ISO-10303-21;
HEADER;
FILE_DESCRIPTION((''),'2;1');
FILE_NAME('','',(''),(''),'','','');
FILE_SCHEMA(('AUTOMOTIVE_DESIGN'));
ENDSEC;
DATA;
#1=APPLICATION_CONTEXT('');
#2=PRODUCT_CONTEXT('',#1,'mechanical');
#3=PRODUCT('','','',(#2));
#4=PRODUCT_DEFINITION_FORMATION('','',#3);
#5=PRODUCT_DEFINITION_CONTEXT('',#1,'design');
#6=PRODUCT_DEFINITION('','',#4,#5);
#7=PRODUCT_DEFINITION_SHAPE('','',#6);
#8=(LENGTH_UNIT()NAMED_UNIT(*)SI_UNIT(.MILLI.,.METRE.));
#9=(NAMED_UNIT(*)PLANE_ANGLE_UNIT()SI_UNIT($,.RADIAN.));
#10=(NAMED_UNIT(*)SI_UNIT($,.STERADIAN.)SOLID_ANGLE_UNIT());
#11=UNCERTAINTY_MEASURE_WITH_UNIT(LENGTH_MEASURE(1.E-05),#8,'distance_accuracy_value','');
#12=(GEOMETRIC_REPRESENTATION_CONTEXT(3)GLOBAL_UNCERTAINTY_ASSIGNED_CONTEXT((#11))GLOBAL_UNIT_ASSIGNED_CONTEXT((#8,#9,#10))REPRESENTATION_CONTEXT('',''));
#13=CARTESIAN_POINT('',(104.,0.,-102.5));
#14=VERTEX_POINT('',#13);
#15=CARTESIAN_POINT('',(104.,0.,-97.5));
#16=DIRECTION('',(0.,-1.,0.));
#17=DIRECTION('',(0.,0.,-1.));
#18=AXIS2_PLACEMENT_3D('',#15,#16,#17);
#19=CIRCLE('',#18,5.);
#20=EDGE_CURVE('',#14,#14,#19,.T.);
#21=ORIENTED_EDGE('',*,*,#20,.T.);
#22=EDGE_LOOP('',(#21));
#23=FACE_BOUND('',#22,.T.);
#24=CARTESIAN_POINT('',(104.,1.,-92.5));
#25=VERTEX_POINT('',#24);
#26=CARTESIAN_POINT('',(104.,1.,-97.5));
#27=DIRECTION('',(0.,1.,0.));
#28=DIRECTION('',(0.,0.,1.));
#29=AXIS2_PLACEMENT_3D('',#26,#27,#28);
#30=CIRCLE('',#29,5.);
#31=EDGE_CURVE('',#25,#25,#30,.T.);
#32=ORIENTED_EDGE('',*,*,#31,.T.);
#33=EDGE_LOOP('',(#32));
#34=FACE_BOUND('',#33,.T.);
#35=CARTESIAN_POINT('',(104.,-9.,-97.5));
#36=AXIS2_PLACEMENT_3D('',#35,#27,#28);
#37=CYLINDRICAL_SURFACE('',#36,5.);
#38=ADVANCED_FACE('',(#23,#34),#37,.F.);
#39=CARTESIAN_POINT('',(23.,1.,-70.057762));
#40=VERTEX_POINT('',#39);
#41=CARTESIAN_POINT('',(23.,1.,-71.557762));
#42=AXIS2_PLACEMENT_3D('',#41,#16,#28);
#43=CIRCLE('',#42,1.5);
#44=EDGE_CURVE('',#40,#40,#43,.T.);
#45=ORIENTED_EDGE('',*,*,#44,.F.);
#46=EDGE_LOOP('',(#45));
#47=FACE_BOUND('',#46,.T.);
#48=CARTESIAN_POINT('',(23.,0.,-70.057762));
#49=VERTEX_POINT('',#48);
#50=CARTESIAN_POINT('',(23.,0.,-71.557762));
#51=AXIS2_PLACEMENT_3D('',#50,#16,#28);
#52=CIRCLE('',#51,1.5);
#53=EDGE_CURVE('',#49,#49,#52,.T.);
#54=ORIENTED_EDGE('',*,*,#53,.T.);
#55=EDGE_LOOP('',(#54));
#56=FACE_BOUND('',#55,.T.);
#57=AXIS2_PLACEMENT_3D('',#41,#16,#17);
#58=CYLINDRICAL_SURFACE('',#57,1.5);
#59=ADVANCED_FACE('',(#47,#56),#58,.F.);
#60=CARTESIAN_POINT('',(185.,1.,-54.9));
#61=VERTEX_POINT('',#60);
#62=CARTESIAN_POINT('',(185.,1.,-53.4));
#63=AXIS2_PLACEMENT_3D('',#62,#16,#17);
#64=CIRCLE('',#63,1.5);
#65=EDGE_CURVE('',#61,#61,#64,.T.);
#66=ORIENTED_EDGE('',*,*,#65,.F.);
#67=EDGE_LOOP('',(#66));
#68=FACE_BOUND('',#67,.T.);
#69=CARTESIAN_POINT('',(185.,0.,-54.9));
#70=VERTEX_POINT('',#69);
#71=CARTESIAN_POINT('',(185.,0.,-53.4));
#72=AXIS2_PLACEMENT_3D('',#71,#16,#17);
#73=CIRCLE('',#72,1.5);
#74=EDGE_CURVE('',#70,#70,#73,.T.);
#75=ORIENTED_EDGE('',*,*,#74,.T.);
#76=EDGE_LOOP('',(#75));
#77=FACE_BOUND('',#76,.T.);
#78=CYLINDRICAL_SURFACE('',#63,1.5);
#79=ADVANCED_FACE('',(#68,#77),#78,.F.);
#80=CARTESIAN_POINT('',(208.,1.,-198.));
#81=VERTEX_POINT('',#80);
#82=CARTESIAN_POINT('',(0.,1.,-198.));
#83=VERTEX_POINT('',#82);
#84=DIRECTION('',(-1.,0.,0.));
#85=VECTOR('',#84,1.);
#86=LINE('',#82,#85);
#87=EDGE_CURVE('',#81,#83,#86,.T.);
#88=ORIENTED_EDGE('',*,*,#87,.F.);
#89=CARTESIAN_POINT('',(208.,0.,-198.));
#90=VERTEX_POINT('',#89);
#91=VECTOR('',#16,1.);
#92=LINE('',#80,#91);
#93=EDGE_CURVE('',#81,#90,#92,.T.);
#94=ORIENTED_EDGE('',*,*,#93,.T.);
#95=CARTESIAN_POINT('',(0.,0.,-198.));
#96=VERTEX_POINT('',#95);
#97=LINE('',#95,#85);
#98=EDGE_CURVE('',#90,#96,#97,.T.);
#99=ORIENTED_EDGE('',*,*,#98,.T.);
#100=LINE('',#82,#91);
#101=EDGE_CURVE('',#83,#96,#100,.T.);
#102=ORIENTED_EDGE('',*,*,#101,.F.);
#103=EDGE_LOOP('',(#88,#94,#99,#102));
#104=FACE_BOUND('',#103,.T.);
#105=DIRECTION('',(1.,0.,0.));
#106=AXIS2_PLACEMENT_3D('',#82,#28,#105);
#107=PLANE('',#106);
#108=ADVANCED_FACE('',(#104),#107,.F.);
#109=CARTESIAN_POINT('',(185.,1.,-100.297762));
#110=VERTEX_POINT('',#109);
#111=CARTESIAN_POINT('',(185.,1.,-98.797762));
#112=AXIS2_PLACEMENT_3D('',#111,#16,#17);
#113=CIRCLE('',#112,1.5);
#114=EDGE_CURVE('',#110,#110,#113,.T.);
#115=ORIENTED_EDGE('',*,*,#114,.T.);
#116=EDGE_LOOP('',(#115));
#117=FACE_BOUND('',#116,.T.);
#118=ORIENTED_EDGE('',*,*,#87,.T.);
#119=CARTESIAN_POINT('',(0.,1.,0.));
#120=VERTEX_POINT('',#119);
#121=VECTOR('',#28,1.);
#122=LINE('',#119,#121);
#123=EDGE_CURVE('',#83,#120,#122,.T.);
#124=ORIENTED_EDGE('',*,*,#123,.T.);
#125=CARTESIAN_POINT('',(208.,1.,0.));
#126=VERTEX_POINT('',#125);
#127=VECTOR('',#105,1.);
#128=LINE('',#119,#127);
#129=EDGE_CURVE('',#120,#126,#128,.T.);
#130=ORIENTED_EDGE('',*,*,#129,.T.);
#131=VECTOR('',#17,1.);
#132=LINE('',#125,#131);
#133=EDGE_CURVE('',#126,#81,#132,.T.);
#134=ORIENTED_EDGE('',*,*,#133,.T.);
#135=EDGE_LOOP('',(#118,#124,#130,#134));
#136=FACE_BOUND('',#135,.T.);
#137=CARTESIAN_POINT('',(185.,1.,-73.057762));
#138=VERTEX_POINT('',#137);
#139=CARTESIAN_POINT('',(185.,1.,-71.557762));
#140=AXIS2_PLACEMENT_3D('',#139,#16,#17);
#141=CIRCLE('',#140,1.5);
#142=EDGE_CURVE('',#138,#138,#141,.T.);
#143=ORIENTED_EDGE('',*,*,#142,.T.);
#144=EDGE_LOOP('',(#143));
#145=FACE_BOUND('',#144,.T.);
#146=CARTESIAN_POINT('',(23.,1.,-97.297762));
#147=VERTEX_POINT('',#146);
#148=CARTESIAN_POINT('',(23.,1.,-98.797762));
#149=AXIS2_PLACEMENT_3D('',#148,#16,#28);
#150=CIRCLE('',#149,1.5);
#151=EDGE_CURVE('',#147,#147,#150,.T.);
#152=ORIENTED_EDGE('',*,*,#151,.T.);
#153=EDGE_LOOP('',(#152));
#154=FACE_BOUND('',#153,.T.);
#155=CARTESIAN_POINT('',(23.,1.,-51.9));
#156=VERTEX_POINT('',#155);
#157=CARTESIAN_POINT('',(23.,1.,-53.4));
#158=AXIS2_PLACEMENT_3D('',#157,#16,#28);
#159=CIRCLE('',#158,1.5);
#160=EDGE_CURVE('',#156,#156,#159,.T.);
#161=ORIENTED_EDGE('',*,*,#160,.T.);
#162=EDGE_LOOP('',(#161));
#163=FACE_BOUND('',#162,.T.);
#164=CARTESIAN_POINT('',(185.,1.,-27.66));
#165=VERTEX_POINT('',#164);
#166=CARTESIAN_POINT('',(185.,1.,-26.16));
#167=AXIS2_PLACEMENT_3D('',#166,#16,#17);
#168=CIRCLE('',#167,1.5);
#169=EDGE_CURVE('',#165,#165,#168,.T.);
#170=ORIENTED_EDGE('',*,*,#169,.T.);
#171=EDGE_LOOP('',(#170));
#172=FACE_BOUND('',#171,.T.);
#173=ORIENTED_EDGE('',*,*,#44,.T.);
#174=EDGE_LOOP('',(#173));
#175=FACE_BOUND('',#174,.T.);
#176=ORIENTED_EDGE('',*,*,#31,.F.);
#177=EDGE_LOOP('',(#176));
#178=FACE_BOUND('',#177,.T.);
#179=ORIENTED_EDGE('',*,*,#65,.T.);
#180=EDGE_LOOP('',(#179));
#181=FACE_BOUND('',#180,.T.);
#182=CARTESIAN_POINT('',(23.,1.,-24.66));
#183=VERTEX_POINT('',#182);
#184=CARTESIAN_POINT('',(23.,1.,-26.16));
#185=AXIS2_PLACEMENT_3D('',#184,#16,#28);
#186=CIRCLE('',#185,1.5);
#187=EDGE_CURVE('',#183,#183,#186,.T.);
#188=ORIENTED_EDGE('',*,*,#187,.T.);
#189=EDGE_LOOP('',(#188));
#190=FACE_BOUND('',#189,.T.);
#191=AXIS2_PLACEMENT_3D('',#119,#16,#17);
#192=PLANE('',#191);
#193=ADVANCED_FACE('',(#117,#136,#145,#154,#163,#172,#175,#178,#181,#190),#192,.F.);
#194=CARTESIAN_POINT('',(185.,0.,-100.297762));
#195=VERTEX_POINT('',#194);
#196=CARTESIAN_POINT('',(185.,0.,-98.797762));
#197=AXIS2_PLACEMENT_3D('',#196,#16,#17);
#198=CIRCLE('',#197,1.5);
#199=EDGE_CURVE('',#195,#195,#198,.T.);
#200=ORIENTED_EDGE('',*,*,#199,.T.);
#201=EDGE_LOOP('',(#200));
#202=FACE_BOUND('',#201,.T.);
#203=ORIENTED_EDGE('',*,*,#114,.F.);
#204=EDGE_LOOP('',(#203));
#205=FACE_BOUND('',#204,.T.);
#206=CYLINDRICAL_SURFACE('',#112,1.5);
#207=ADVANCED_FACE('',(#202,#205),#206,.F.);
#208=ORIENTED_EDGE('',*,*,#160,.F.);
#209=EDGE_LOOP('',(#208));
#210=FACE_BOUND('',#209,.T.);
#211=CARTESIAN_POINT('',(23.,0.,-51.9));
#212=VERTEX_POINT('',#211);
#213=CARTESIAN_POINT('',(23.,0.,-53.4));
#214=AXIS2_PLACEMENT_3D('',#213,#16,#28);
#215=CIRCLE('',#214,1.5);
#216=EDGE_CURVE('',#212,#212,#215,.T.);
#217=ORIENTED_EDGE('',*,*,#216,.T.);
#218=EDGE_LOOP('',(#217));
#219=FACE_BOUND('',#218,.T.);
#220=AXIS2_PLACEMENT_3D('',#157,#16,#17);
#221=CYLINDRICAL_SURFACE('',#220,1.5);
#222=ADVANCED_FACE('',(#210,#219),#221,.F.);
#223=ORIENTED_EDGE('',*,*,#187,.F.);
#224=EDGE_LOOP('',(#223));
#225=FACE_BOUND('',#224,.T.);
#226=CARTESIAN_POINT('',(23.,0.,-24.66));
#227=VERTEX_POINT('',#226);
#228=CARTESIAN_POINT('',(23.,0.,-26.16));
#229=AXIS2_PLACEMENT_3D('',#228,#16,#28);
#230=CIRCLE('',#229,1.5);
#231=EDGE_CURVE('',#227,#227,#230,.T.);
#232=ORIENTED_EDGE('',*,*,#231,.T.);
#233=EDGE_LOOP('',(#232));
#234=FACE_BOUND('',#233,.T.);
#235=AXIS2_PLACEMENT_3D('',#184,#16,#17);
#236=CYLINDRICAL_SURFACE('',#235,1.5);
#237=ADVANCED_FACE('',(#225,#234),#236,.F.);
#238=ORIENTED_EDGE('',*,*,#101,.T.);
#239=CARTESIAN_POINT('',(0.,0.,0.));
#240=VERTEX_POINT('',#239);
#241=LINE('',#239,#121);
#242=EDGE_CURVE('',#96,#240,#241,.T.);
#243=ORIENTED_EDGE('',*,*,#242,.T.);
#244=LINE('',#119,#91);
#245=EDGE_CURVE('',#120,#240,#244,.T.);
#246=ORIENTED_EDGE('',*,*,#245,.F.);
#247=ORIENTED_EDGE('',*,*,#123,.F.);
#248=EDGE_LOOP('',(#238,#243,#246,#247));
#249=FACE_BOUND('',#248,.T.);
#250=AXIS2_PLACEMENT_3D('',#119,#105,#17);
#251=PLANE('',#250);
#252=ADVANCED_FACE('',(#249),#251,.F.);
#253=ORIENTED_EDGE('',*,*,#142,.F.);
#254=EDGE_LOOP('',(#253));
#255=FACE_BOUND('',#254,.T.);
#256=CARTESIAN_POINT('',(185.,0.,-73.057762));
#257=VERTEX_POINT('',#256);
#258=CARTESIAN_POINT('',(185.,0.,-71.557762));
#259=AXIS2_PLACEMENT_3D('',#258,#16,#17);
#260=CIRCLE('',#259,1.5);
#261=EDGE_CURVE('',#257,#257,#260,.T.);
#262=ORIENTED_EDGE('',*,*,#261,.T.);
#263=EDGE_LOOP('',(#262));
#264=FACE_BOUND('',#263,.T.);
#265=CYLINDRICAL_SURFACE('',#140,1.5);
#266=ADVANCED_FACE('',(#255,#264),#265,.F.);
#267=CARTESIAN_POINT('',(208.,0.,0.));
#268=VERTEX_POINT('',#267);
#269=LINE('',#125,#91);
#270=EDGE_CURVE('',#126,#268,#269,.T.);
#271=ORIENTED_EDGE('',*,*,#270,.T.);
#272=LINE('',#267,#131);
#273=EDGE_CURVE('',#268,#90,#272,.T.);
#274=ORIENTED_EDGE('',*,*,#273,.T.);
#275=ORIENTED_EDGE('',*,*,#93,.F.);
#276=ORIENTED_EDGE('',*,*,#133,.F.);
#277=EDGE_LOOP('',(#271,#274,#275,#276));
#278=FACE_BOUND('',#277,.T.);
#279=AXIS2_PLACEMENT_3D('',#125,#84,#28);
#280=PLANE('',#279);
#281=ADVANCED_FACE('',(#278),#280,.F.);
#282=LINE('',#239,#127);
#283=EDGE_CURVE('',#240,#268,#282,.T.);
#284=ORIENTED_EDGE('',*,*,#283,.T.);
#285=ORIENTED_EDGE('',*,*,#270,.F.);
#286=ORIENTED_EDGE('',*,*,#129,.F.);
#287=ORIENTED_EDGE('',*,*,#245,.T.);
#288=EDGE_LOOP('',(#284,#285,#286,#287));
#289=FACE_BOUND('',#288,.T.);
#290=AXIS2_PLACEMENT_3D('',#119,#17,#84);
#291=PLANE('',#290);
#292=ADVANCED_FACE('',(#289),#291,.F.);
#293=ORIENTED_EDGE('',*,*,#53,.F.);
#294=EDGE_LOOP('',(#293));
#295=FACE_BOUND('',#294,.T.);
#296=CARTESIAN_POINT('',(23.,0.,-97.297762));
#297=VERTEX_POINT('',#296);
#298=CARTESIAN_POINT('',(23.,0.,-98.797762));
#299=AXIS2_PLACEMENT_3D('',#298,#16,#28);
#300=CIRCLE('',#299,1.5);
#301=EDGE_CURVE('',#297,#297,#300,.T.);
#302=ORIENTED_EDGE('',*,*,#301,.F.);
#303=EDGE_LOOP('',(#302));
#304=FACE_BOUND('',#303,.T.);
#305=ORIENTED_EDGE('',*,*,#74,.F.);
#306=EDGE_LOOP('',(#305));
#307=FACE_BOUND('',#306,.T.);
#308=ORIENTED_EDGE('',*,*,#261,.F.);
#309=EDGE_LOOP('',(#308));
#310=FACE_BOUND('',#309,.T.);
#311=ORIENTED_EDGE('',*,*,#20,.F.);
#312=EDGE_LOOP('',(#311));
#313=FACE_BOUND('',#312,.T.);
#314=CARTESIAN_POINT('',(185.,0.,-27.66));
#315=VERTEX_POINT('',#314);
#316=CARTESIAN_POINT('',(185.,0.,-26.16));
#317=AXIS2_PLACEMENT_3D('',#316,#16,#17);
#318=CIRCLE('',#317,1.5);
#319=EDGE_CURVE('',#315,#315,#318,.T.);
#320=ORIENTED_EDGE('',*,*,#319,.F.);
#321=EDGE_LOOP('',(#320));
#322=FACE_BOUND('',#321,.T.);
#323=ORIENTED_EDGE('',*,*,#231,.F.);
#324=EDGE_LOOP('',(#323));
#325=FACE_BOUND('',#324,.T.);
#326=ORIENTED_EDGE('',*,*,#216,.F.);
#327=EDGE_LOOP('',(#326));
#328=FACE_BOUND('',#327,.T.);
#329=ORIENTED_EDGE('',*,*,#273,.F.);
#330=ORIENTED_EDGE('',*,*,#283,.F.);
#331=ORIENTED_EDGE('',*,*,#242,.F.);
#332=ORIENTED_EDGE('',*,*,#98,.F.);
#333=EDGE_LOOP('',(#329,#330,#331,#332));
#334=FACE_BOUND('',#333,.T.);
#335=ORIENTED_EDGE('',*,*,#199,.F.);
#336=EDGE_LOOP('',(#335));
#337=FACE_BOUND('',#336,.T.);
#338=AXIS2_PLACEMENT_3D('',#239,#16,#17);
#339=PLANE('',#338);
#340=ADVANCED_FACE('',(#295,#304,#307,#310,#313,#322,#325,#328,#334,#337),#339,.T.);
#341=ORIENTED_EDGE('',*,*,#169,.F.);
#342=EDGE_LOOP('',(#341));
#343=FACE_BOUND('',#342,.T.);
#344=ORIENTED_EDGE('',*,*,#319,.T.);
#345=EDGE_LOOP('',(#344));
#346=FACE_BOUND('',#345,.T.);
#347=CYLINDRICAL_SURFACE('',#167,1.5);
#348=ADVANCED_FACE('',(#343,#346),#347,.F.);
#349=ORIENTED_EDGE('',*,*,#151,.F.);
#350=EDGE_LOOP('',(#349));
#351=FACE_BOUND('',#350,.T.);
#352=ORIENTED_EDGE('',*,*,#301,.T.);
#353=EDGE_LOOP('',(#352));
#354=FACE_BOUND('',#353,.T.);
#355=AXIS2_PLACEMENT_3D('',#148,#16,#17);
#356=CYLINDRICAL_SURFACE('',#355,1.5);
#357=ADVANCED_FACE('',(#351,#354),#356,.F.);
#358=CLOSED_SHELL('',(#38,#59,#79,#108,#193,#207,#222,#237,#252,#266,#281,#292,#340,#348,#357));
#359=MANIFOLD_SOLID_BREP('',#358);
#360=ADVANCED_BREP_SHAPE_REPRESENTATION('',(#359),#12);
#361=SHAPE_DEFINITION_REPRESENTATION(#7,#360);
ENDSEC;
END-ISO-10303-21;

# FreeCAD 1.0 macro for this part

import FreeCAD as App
import Part
import Sketcher
from FreeCAD import Vector

doc = App.newDocument("Part")
body = doc.addObject("PartDesign::Body", "Body")

# Sketch on XZ plane
sketch1 = body.newObject("Sketcher::SketchObject", "Sketch")
sketch1.AttachmentSupport = (doc.getObject("XZ_Plane"), [""])
sketch1.MapMode = "FlatFace"
sketch1.addGeometry(Part.LineSegment(Vector(0, -198, 0), Vector(0, 0, 0)), False)
sketch1.addGeometry(Part.LineSegment(Vector(0, 0, 0), Vector(208, 0, 0)), False)
sketch1.addGeometry(Part.LineSegment(Vector(208, 0, 0), Vector(208, -198, 0)), False)
sketch1.addGeometry(Part.LineSegment(Vector(208, -198, 0), Vector(0, -198, 0)), False)
sketch1.addConstraint(Sketcher.Constraint("Coincident", 0, 2, 1, 1))
sketch1.addConstraint(Sketcher.Constraint("Coincident", 1, 2, 2, 1))
sketch1.addConstraint(Sketcher.Constraint("Coincident", 2, 2, 3, 1))
sketch1.addConstraint(Sketcher.Constraint("Coincident", 3, 2, 0, 1))
sketch1.addConstraint(Sketcher.Constraint("Vertical", 0))
sketch1.addConstraint(Sketcher.Constraint("Horizontal", 1))
sketch1.addConstraint(Sketcher.Constraint("Vertical", 2))
sketch1.addConstraint(Sketcher.Constraint("Horizontal", 3))
sketch1.addConstraint(Sketcher.Constraint("Coincident", 0, 2, -1, 1))
sketch1.addConstraint(Sketcher.Constraint("DistanceX", 1, 1, 1, 2, 208.0))
sketch1.addConstraint(Sketcher.Constraint("DistanceY", 0, 1, 0, 2, 198.0))
pad1 = body.newObject("PartDesign::Pad", "Pad")
pad1.Profile = sketch1
pad1.Length = 1
pad1.Reversed = True

# Sketch on XZ plane
sketch2 = body.newObject("Sketcher::SketchObject", "Sketch001")
sketch2.AttachmentSupport = (doc.getObject("XZ_Plane"), [""])
sketch2.MapMode = "FlatFace"
sketch2.AttachmentOffset = App.Placement(Vector(0, 0, -1), App.Rotation())
sketch2.addGeometry(Part.Circle(Vector(104, -98, 0), Vector(0, 0, 1), 5), False)
sketch2.addConstraint(Sketcher.Constraint("Diameter", 0, 10.0))
sketch2.addConstraint(Sketcher.Constraint("DistanceX", -1, 1, 0, 3, 104.0))
sketch2.addConstraint(Sketcher.Constraint("DistanceY", 0, 3, -1, 1, 97.5))
pocket1 = body.newObject("PartDesign::Pocket", "Pocket")
pocket1.Profile = sketch2
pocket1.Length = 10
pocket1.Reversed = True

# Sketch on XZ plane
sketch3 = body.newObject("Sketcher::SketchObject", "Sketch002")
sketch3.AttachmentSupport = (doc.getObject("XZ_Plane"), [""])
sketch3.MapMode = "FlatFace"
sketch3.addGeometry(Part.Circle(Vector(185, -98.8, 0), Vector(0, 0, 1), 1.5), False)
sketch3.addGeometry(Part.Circle(Vector(185, -71.6, 0), Vector(0, 0, 1), 1.5), False)
sketch3.addGeometry(Part.Circle(Vector(185, -53.4, 0), Vector(0, 0, 1), 1.5), False)
sketch3.addGeometry(Part.Circle(Vector(185, -26.2, 0), Vector(0, 0, 1), 1.5), False)
sketch3.addGeometry(Part.Circle(Vector(23, -26.2, 0), Vector(0, 0, 1), 1.5), False)
sketch3.addGeometry(Part.Circle(Vector(23, -53.4, 0), Vector(0, 0, 1), 1.5), False)
sketch3.addGeometry(Part.Circle(Vector(23, -71.6, 0), Vector(0, 0, 1), 1.5), False)
sketch3.addGeometry(Part.Circle(Vector(23, -98.8, 0), Vector(0, 0, 1), 1.5), False)
sketch3.addConstraint(Sketcher.Constraint("Equal", 0, 1))
sketch3.addConstraint(Sketcher.Constraint("Equal", 1, 2))
sketch3.addConstraint(Sketcher.Constraint("Equal", 2, 3))
sketch3.addConstraint(Sketcher.Constraint("Equal", 3, 4))
sketch3.addConstraint(Sketcher.Constraint("Equal", 4, 5))
sketch3.addConstraint(Sketcher.Constraint("Equal", 5, 6))
sketch3.addConstraint(Sketcher.Constraint("Equal", 6, 7))
sketch3.addConstraint(Sketcher.Constraint("Horizontal", 3, 3, 4, 3))
sketch3.addConstraint(Sketcher.Constraint("Horizontal", 2, 3, 5, 3))
sketch3.addConstraint(Sketcher.Constraint("Horizontal", 1, 3, 6, 3))
sketch3.addConstraint(Sketcher.Constraint("Horizontal", 0, 3, 7, 3))
sketch3.addConstraint(Sketcher.Constraint("Vertical", 0, 3, 1, 3))
sketch3.addConstraint(Sketcher.Constraint("Vertical", 1, 3, 2, 3))
sketch3.addConstraint(Sketcher.Constraint("Vertical", 2, 3, 3, 3))
sketch3.addConstraint(Sketcher.Constraint("Vertical", 4, 3, 5, 3))
sketch3.addConstraint(Sketcher.Constraint("Vertical", 5, 3, 6, 3))
sketch3.addConstraint(Sketcher.Constraint("Vertical", 6, 3, 7, 3))
sketch3.addConstraint(Sketcher.Constraint("Diameter", 0, 3.0))
sketch3.addConstraint(Sketcher.Constraint("DistanceX", -1, 1, 0, 3, 185.0))
sketch3.addConstraint(Sketcher.Constraint("DistanceX", -1, 1, 4, 3, 23.0))
sketch3.addConstraint(Sketcher.Constraint("DistanceY", 2, 3, -1, 1, 53.4))
sketch3.addConstraint(Sketcher.Constraint("DistanceY", 3, 3, -1, 1, 26.16))
sketch3.addConstraint(Sketcher.Constraint("DistanceY", 0, 3, 1, 3, 27.24))
sketch3.addConstraint(Sketcher.Constraint("DistanceY", 0, 3, -1, 1, 98.797762))
pocket2 = body.newObject("PartDesign::Pocket", "Pocket001")
pocket2.Profile = sketch3
pocket2.Length = 1

doc.recompute()
